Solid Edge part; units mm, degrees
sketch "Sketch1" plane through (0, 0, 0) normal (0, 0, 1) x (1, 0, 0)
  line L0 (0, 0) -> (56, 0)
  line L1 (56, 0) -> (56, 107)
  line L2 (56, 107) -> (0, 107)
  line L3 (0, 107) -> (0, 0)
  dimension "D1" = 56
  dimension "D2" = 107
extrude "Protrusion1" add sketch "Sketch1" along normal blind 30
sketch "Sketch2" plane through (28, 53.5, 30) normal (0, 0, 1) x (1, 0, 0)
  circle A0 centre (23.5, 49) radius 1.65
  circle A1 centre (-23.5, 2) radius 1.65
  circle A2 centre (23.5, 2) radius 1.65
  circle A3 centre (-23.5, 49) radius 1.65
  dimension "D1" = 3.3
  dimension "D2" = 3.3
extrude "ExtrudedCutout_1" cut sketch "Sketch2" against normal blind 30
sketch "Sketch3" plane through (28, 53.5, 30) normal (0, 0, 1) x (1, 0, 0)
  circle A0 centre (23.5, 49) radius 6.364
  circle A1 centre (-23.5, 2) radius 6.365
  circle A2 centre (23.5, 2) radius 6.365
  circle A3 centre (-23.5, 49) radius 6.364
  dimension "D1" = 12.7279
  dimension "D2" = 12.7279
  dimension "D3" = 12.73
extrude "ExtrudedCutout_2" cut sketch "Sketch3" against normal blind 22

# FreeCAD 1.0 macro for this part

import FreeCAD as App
import Part
import Sketcher

V = App.Vector
Q = App.Units.Quantity

doc = App.newDocument("Part")
params = doc.addObject("Spreadsheet::Sheet", "Params")
for row, (alias, value) in enumerate([
    ("sketch1_width", "56 mm"),
    ("sketch1_height", "107 mm"),
    ("pad1_length", "30 mm"),
    ("sketch2_diameter", "3.3 mm"),
    ("pocket1_length", "30 mm"),
    ("sketch3_diameter", "12.73 mm"),
    ("pocket2_length", "22 mm"),
], start=1):
    params.set(f"A{row}", alias)
    params.set(f"B{row}", "=" + value)
    params.setAlias(f"B{row}", alias)

body = doc.addObject("PartDesign::Body", "Body")

sketch1 = doc.addObject("Sketcher::SketchObject", "Sketch")
body.addObject(sketch1)
sketch1.AttachmentSupport = (doc.XY_Plane, [""])
sketch1.MapMode = "FlatFace"
sketch1.addGeometry(Part.LineSegment(V(0, 107, 0), V(0, 0, 0)), False)
sketch1.addGeometry(Part.LineSegment(V(0, 0, 0), V(56, 0, 0)), False)
sketch1.addGeometry(Part.LineSegment(V(56, 0, 0), V(56, 107, 0)), False)
sketch1.addGeometry(Part.LineSegment(V(56, 107, 0), V(0, 107, 0)), False)
sketch1.addConstraint(Sketcher.Constraint("Coincident", 0, 2, 1, 1))
sketch1.addConstraint(Sketcher.Constraint("Coincident", 1, 2, 2, 1))
sketch1.addConstraint(Sketcher.Constraint("Coincident", 2, 2, 3, 1))
sketch1.addConstraint(Sketcher.Constraint("Coincident", 3, 2, 0, 1))
sketch1.addConstraint(Sketcher.Constraint("Vertical", 0))
sketch1.addConstraint(Sketcher.Constraint("Horizontal", 1))
sketch1.addConstraint(Sketcher.Constraint("Vertical", 2))
sketch1.addConstraint(Sketcher.Constraint("Horizontal", 3))
sketch1.addConstraint(Sketcher.Constraint("Coincident", 0, 2, -1, 1))
sketch1.addConstraint(Sketcher.Constraint("DistanceX", 1, 1, 1, 2, Q("56 mm")))
sketch1.addConstraint(Sketcher.Constraint("DistanceY", 0, 2, 0, 1, Q("107 mm")))
sketch1.setExpression("Constraints[9]", "Params.sketch1_width")
sketch1.setExpression("Constraints[10]", "Params.sketch1_height")
pad1 = doc.addObject("PartDesign::Pad", "Pad")
body.addObject(pad1)
pad1.Profile = sketch1
pad1.setExpression("Length", "Params.pad1_length")

sketch2 = doc.addObject("Sketcher::SketchObject", "Sketch001")
body.addObject(sketch2)
sketch2.AttachmentSupport = (doc.XY_Plane, [""])
sketch2.MapMode = "FlatFace"
sketch2.AttachmentOffset = App.Placement(V(0, 0, 30), App.Rotation())
sketch2.addGeometry(Part.Circle(V(51.5, 102.5, 0), V(0, 0, 1), 1.65), False)
sketch2.addGeometry(Part.Circle(V(4.5, 55.5, 0), V(0, 0, 1), 1.65), False)
sketch2.addGeometry(Part.Circle(V(51.5, 55.5, 0), V(0, 0, 1), 1.65), False)
sketch2.addGeometry(Part.Circle(V(4.5, 102.5, 0), V(0, 0, 1), 1.65), False)
sketch2.addConstraint(Sketcher.Constraint("Equal", 0, 1))
sketch2.addConstraint(Sketcher.Constraint("Equal", 1, 2))
sketch2.addConstraint(Sketcher.Constraint("Equal", 2, 3))
sketch2.addConstraint(Sketcher.Constraint("Horizontal", 1, 3, 2, 3))
sketch2.addConstraint(Sketcher.Constraint("Horizontal", 0, 3, 3, 3))
sketch2.addConstraint(Sketcher.Constraint("Vertical", 0, 3, 2, 3))
sketch2.addConstraint(Sketcher.Constraint("Vertical", 1, 3, 3, 3))
sketch2.addConstraint(Sketcher.Constraint("Diameter", 0, Q("3.3 mm")))
sketch2.addConstraint(Sketcher.Constraint("DistanceX", 1, 3, 0, 3, Q("47 mm")))
sketch2.addConstraint(Sketcher.Constraint("DistanceY", 1, 3, 0, 3, Q("47 mm")))
sketch2.addConstraint(Sketcher.Constraint("DistanceX", -1, 1, 0, 3, Q("51.5 mm")))
sketch2.addConstraint(Sketcher.Constraint("DistanceY", -1, 1, 0, 3, Q("102.5 mm")))
sketch2.setExpression("Constraints[7]", "Params.sketch2_diameter")
pocket1 = doc.addObject("PartDesign::Pocket", "Pocket")
body.addObject(pocket1)
pocket1.Profile = sketch2
pocket1.setExpression("Length", "Params.pocket1_length")

sketch3 = doc.addObject("Sketcher::SketchObject", "Sketch002")
body.addObject(sketch3)
sketch3.AttachmentSupport = (doc.XY_Plane, [""])
sketch3.MapMode = "FlatFace"
sketch3.AttachmentOffset = App.Placement(V(0, 0, 30), App.Rotation())
sketch3.addGeometry(Part.Circle(V(51.5, 102.5, 0), V(0, 0, 1), 6.364), False)
sketch3.addGeometry(Part.Circle(V(4.5, 55.5, 0), V(0, 0, 1), 6.365), False)
sketch3.addGeometry(Part.Circle(V(51.5, 55.5, 0), V(0, 0, 1), 6.365), False)
sketch3.addGeometry(Part.Circle(V(4.5, 102.5, 0), V(0, 0, 1), 6.364), False)
sketch3.addConstraint(Sketcher.Constraint("Equal", 1, 2))
sketch3.addConstraint(Sketcher.Constraint("Equal", 0, 3))
sketch3.addConstraint(Sketcher.Constraint("Horizontal", 1, 3, 2, 3))
sketch3.addConstraint(Sketcher.Constraint("Horizontal", 0, 3, 3, 3))
sketch3.addConstraint(Sketcher.Constraint("Vertical", 0, 3, 2, 3))
sketch3.addConstraint(Sketcher.Constraint("Vertical", 1, 3, 3, 3))
sketch3.addConstraint(Sketcher.Constraint("Diameter", 1, Q("12.73 mm")))
sketch3.addConstraint(Sketcher.Constraint("Diameter", 0, Q("12.728 mm")))
sketch3.addConstraint(Sketcher.Constraint("DistanceX", 1, 3, 0, 3, Q("47 mm")))
sketch3.addConstraint(Sketcher.Constraint("DistanceY", 1, 3, 0, 3, Q("47 mm")))
sketch3.addConstraint(Sketcher.Constraint("DistanceX", -1, 1, 0, 3, Q("51.5 mm")))
sketch3.addConstraint(Sketcher.Constraint("DistanceY", -1, 1, 0, 3, Q("102.5 mm")))
sketch3.setExpression("Constraints[6]", "Params.sketch3_diameter")
pocket2 = doc.addObject("PartDesign::Pocket", "Pocket001")
body.addObject(pocket2)
pocket2.Profile = sketch3
pocket2.setExpression("Length", "Params.pocket2_length")

doc.recompute()
